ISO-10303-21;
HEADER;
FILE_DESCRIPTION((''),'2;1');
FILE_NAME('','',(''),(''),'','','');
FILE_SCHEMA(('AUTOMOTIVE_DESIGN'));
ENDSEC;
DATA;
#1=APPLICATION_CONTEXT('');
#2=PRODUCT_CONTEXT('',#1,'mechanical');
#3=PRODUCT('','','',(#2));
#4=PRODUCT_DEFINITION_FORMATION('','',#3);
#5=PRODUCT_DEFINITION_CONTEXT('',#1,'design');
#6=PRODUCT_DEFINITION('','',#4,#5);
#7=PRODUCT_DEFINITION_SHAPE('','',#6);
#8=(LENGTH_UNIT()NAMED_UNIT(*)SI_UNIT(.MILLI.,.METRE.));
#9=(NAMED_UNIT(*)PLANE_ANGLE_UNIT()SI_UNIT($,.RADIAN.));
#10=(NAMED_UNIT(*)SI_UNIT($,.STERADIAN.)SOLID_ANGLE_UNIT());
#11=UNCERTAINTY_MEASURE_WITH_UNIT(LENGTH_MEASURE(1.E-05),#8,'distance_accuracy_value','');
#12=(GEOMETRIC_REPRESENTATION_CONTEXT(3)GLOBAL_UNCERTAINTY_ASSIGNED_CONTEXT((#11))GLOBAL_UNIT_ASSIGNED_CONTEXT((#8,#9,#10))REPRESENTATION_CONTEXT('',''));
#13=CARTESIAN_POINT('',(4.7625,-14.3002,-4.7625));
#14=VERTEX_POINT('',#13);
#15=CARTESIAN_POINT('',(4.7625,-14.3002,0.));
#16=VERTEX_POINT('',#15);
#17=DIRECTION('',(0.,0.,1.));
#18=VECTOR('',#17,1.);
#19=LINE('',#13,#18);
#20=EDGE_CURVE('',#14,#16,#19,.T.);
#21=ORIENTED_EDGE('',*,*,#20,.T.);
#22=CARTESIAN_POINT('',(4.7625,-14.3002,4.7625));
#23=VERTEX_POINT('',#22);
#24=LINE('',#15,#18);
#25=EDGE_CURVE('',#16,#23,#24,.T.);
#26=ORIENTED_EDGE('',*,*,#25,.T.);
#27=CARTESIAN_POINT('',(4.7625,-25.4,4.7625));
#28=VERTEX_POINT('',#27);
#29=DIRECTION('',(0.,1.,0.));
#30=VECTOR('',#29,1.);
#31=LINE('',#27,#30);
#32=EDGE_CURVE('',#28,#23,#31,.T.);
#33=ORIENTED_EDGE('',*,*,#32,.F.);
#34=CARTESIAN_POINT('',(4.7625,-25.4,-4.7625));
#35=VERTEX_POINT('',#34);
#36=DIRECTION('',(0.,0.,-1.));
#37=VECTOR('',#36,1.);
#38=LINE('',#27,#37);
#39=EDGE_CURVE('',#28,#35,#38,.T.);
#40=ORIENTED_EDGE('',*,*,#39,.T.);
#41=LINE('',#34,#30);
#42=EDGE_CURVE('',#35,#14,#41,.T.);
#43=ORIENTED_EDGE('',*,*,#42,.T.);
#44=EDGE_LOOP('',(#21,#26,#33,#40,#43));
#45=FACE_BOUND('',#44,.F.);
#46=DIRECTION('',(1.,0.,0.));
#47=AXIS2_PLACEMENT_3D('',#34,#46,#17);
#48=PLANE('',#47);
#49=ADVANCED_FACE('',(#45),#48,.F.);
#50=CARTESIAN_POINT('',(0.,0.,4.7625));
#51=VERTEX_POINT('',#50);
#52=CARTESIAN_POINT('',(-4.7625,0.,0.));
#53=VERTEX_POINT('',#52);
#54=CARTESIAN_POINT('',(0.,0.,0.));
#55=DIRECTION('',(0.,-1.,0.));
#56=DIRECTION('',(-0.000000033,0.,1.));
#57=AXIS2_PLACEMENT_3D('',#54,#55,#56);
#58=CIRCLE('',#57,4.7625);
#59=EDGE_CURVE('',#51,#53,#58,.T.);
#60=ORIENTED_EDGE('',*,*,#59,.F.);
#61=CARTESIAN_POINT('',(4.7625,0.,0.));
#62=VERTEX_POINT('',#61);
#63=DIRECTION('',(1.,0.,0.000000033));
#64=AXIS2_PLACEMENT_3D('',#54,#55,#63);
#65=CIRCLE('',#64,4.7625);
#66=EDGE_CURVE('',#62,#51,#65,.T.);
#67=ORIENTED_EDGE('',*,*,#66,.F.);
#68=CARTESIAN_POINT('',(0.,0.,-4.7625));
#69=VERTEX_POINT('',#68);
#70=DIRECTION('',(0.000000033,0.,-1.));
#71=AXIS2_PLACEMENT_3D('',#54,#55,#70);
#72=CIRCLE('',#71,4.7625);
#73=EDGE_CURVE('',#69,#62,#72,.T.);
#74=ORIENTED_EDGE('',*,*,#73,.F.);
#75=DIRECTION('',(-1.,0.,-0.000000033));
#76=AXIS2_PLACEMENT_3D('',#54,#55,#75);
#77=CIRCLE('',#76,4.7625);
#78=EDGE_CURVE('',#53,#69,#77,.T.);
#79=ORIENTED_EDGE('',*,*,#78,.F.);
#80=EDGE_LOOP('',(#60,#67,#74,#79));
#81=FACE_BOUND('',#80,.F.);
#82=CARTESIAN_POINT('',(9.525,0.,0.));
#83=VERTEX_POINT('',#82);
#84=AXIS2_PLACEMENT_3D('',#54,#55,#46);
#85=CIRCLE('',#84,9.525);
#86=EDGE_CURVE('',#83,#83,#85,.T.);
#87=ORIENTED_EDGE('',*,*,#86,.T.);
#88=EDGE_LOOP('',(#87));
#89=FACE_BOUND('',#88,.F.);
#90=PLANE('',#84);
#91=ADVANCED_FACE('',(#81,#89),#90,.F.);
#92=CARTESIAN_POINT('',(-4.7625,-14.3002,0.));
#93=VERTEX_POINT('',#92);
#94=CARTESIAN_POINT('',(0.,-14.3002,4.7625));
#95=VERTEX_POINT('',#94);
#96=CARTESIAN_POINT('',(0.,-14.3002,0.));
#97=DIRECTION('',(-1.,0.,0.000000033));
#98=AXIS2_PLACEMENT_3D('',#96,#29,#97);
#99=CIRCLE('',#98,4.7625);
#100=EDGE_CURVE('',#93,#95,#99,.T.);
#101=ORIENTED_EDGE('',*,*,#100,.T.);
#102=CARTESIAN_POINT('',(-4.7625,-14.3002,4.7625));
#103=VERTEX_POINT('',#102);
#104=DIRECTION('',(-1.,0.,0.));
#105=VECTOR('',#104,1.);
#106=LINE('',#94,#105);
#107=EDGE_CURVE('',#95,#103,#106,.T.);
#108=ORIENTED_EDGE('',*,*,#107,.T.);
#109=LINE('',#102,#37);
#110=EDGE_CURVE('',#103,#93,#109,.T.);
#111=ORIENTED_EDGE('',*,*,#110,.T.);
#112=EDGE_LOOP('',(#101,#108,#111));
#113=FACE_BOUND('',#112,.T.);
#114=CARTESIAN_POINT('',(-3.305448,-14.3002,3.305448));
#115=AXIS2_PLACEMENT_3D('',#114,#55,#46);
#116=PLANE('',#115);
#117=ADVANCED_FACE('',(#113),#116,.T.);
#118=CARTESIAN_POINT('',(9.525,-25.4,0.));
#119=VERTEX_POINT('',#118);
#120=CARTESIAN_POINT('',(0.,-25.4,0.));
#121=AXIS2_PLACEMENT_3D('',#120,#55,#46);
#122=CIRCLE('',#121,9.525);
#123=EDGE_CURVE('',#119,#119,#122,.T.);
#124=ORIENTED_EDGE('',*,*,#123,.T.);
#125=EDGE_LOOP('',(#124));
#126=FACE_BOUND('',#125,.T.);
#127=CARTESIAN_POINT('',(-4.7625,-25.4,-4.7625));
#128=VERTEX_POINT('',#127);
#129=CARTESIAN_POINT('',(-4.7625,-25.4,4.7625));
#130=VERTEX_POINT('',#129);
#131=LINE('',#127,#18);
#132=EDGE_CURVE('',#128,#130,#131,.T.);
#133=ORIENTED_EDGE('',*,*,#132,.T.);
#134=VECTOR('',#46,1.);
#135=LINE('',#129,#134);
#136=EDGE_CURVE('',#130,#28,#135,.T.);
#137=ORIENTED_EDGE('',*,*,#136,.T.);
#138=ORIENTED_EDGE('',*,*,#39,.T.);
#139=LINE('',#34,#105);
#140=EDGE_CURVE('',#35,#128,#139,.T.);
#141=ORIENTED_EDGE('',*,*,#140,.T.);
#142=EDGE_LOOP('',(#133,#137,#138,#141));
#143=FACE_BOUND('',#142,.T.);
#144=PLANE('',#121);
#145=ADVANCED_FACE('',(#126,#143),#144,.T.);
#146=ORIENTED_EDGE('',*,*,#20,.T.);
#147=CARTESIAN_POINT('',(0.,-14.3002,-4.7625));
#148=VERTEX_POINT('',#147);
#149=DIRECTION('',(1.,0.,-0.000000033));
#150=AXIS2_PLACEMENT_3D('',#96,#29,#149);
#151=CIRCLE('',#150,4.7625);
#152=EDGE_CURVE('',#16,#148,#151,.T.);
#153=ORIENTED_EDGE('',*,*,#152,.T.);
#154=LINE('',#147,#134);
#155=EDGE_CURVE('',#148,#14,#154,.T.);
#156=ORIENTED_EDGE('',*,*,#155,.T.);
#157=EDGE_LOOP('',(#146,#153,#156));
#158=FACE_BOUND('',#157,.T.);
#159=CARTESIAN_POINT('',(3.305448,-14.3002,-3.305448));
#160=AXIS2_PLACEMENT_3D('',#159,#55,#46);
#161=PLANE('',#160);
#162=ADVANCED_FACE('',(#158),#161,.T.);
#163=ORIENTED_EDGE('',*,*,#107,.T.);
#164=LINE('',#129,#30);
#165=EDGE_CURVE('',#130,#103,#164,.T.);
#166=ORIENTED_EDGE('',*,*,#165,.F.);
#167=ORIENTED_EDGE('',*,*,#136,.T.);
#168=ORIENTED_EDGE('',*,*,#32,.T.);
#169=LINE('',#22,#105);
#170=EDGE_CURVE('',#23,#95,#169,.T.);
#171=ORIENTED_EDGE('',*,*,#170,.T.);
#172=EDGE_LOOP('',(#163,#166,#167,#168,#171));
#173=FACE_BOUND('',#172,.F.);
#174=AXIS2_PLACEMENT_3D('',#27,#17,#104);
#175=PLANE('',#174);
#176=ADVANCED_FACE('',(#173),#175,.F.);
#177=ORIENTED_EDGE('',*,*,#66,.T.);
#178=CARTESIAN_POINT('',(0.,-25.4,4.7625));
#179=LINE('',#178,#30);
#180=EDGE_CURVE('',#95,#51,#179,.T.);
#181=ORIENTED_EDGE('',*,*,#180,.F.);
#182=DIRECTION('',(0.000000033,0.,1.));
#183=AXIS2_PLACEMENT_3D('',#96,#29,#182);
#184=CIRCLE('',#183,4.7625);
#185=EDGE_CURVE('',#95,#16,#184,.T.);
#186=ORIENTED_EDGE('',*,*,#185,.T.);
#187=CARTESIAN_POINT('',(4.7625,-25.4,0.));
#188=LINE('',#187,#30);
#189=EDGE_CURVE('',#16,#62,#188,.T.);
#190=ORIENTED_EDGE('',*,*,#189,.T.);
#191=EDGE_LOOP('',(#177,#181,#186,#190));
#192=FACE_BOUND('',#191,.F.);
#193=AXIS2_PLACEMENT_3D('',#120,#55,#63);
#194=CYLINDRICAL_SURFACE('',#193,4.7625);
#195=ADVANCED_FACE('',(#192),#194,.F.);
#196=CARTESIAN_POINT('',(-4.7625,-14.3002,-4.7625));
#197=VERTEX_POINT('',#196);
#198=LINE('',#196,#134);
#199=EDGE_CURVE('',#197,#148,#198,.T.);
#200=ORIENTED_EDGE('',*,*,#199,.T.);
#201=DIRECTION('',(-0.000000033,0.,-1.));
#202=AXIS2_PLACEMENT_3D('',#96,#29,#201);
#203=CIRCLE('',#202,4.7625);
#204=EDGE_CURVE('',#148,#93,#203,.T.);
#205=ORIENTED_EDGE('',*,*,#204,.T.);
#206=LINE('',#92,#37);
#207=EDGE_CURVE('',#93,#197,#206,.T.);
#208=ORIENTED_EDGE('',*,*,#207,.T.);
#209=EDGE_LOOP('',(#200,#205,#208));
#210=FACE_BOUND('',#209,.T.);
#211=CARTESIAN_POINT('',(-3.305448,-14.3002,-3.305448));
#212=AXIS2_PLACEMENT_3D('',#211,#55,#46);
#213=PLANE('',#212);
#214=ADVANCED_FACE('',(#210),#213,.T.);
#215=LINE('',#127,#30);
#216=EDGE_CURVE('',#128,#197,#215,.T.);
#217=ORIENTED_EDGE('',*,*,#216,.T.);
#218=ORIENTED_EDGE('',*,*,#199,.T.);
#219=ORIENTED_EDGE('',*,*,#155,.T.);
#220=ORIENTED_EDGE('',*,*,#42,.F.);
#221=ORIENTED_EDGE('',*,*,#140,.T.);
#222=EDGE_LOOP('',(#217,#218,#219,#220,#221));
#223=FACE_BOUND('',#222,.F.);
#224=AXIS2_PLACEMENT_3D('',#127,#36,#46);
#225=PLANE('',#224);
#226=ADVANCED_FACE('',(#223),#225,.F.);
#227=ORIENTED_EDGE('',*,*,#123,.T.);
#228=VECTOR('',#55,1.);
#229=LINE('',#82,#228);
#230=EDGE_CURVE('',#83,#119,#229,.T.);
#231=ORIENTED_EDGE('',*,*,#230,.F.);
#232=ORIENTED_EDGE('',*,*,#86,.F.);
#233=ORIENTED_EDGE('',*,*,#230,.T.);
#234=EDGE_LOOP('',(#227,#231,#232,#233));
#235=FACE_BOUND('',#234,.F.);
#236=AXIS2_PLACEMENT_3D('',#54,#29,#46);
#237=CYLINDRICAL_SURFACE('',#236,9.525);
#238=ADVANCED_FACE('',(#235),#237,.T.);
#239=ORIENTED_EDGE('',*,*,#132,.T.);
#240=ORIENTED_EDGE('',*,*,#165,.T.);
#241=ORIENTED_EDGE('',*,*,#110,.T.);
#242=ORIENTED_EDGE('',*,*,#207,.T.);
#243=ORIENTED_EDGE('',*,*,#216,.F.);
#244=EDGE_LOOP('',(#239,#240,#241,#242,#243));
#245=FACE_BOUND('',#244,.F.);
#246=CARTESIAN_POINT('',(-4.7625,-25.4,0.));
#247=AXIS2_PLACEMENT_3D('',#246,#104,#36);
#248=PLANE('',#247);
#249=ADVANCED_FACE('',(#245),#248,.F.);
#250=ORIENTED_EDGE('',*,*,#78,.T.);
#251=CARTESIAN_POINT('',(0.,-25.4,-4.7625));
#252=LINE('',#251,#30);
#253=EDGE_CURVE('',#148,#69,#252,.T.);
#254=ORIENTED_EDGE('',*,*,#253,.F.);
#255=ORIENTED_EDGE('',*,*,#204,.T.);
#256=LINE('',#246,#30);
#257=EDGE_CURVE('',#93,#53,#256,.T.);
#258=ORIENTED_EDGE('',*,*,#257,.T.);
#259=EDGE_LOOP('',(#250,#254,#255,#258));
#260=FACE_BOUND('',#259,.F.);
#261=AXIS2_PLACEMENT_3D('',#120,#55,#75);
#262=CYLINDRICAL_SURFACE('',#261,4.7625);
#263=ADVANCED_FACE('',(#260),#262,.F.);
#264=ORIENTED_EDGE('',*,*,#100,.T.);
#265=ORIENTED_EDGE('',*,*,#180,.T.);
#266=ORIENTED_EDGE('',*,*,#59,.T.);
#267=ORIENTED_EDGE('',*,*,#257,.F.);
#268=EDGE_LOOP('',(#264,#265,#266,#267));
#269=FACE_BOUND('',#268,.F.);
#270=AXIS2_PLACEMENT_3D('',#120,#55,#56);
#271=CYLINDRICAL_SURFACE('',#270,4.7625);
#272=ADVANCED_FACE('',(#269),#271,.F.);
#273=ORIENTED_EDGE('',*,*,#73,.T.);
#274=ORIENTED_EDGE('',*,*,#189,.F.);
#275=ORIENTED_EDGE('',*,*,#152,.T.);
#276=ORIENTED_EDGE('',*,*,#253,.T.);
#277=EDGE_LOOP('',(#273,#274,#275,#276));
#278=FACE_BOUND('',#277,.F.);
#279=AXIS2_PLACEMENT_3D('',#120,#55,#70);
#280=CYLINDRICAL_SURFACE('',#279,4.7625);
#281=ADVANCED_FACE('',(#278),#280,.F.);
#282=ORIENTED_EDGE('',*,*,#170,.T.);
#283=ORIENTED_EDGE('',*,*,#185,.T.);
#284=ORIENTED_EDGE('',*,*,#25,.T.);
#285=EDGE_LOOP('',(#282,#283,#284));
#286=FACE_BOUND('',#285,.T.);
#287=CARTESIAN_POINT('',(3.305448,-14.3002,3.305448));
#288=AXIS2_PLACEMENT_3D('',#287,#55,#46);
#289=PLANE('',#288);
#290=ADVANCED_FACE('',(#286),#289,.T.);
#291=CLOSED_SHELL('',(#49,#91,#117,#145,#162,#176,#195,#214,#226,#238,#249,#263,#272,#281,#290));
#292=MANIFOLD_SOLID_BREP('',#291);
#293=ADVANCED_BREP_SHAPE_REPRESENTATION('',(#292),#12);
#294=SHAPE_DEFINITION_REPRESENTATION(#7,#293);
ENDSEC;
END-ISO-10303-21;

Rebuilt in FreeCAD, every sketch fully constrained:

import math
import FreeCAD as App
import Part
import Sketcher
from FreeCAD import Vector
Q = App.Units.Quantity

doc = App.newDocument("Part")
params = doc.addObject("Spreadsheet::Sheet", "Params")
for row, (alias, value) in enumerate([
    ("sketch1_diameter", "0.75 in"),
    ("pad1_length", "1 in"),
    ("sketch2_radius", "0.1875 in"),
    ("sketch3_radius", "0.1875 in"),
    ("pocket2_length", "0.437 in"),
], start=1):
    params.set(f"A{row}", alias)
    params.set(f"B{row}", "=" + value)
    params.setAlias(f"B{row}", alias)

body = doc.addObject("PartDesign::Body", "Body")

# Sketch on XZ plane
sketch1 = doc.addObject("Sketcher::SketchObject", "Sketch")
body.addObject(sketch1)
sketch1.AttachmentSupport = (doc.XZ_Plane, [""])
sketch1.MapMode = "FlatFace"
sketch1.addGeometry(Part.Circle(Vector(0, 0, 0), Vector(0, 0, 1), 10), False)
sketch1.addConstraint(Sketcher.Constraint("Coincident", 0, 3, -1, 1))
sketch1.addConstraint(Sketcher.Constraint("Diameter", 0, Q("0.75 in")))
sketch1.setExpression("Constraints[1]", "Params.sketch1_diameter")
pad1 = doc.addObject("PartDesign::Pad", "Pad")
body.addObject(pad1)
pad1.Profile = sketch1
pad1.setExpression("Length", "Params.pad1_length")

# Sketch on XZ plane
sketch2 = doc.addObject("Sketcher::SketchObject", "Sketch001")
body.addObject(sketch2)
sketch2.AttachmentSupport = (doc.XZ_Plane, [""])
sketch2.MapMode = "FlatFace"
sketch2.AttachmentOffset = App.Placement(Vector(0, 0, 1 * 25.4), App.Rotation())
sketch2.addGeometry(Part.ArcOfCircle(Part.Circle(Vector(0, 0, 0), Vector(0, 0, 1), 4.8), math.radians(-180), math.radians(-90)), False)
sketch2.addGeometry(Part.ArcOfCircle(Part.Circle(Vector(0, 0, 0), Vector(0, 0, 1), 4.8), math.radians(-90), math.radians(0)), False)
sketch2.addGeometry(Part.ArcOfCircle(Part.Circle(Vector(0, 0, 0), Vector(0, 0, 1), 4.8), math.radians(0), math.radians(90)), False)
sketch2.addGeometry(Part.ArcOfCircle(Part.Circle(Vector(0, 0, 0), Vector(0, 0, 1), 4.8), math.radians(90), math.radians(180)), False)
sketch2.addConstraint(Sketcher.Constraint("Tangent", 0, 2, 1, 1))
sketch2.addConstraint(Sketcher.Constraint("Tangent", 1, 2, 2, 1))
sketch2.addConstraint(Sketcher.Constraint("Tangent", 2, 2, 3, 1))
sketch2.addConstraint(Sketcher.Constraint("Tangent", 3, 2, 0, 1))
sketch2.addConstraint(Sketcher.Constraint("Coincident", 0, 3, -1, 1))
sketch2.addConstraint(Sketcher.Constraint("Equal", 0, 1))
sketch2.addConstraint(Sketcher.Constraint("PointOnObject", 0, 2, -2))
sketch2.addConstraint(Sketcher.Constraint("PointOnObject", 1, 2, -1))
sketch2.addConstraint(Sketcher.Constraint("PointOnObject", 2, 2, -2))
sketch2.addConstraint(Sketcher.Constraint("PointOnObject", 3, 2, -1))
sketch2.addConstraint(Sketcher.Constraint("Radius", 0, Q("0.1875 in")))
sketch2.setExpression("Constraints[10]", "Params.sketch2_radius")
pocket1 = doc.addObject("PartDesign::Pocket", "Pocket")
body.addObject(pocket1)
pocket1.Profile = sketch2
pocket1.Type = "ThroughAll"

# Sketch on XZ plane
sketch3 = doc.addObject("Sketcher::SketchObject", "Sketch002")
body.addObject(sketch3)
sketch3.AttachmentSupport = (doc.XZ_Plane, [""])
sketch3.MapMode = "FlatFace"
sketch3.AttachmentOffset = App.Placement(Vector(0, 0, 1 * 25.4), App.Rotation())
sketch3.addGeometry(Part.LineSegment(Vector(0, -4.8, 0), Vector(4.8, -4.8, 0)), False)
sketch3.addGeometry(Part.LineSegment(Vector(4.8, -4.8, 0), Vector(4.8, 0, 0)), False)
sketch3.addGeometry(Part.ArcOfCircle(Part.Circle(Vector(0, 0, 0), Vector(0, 0, 1), 4.8), math.radians(-90), math.radians(0)), False)
sketch3.addGeometry(Part.LineSegment(Vector(-4.8, -4.8, 0), Vector(0, -4.8, 0)), False)
sketch3.addGeometry(Part.ArcOfCircle(Part.Circle(Vector(0, 0, 0), Vector(0, 0, 1), 4.8), math.radians(-180), math.radians(-90)), False)
sketch3.addGeometry(Part.LineSegment(Vector(-4.8, 0, 0), Vector(-4.8, -4.8, 0)), False)
sketch3.addGeometry(Part.ArcOfCircle(Part.Circle(Vector(0, 0, 0), Vector(0, 0, 1), 4.8), math.radians(0), math.radians(90)), False)
sketch3.addGeometry(Part.LineSegment(Vector(4.8, 0, 0), Vector(4.8, 4.8, 0)), False)
sketch3.addGeometry(Part.LineSegment(Vector(4.8, 4.8, 0), Vector(0, 4.8, 0)), False)
sketch3.addGeometry(Part.LineSegment(Vector(-4.8, 4.8, 0), Vector(-4.8, 0, 0)), False)
sketch3.addGeometry(Part.ArcOfCircle(Part.Circle(Vector(0, 0, 0), Vector(0, 0, 1), 4.8), math.radians(90), math.radians(180)), False)
sketch3.addGeometry(Part.LineSegment(Vector(0, 4.8, 0), Vector(-4.8, 4.8, 0)), False)
sketch3.addConstraint(Sketcher.Constraint("Coincident", 0, 2, 1, 1))
sketch3.addConstraint(Sketcher.Constraint("Tangent", 1, 2, 2, 2))
sketch3.addConstraint(Sketcher.Constraint("Tangent", 2, 1, 0, 1))
sketch3.addConstraint(Sketcher.Constraint("Tangent", 3, 2, 4, 2))
sketch3.addConstraint(Sketcher.Constraint("Tangent", 4, 1, 5, 1))
sketch3.addConstraint(Sketcher.Constraint("Coincident", 5, 2, 3, 1))
sketch3.addConstraint(Sketcher.Constraint("Tangent", 6, 1, 7, 1))
sketch3.addConstraint(Sketcher.Constraint("Coincident", 7, 2, 8, 1))
sketch3.addConstraint(Sketcher.Constraint("Tangent", 8, 2, 6, 2))
sketch3.addConstraint(Sketcher.Constraint("Tangent", 9, 2, 10, 2))
sketch3.addConstraint(Sketcher.Constraint("Tangent", 10, 1, 11, 1))
sketch3.addConstraint(Sketcher.Constraint("Coincident", 11, 2, 9, 1))
sketch3.addConstraint(Sketcher.Constraint("Horizontal", 0))
sketch3.addConstraint(Sketcher.Constraint("Vertical", 1))
sketch3.addConstraint(Sketcher.Constraint("Horizontal", 3))
sketch3.addConstraint(Sketcher.Constraint("Vertical", 5))
sketch3.addConstraint(Sketcher.Constraint("Vertical", 7))
sketch3.addConstraint(Sketcher.Constraint("Horizontal", 8))
sketch3.addConstraint(Sketcher.Constraint("Vertical", 9))
sketch3.addConstraint(Sketcher.Constraint("Horizontal", 11))
sketch3.addConstraint(Sketcher.Constraint("Coincident", 2, 3, -1, 1))
sketch3.addConstraint(Sketcher.Constraint("Coincident", 4, 3, -1, 1))
sketch3.addConstraint(Sketcher.Constraint("Coincident", 6, 3, -1, 1))
sketch3.addConstraint(Sketcher.Constraint("Coincident", 10, 3, -1, 1))
sketch3.addConstraint(Sketcher.Constraint("Equal", 2, 4))
sketch3.addConstraint(Sketcher.Constraint("Equal", 4, 6))
sketch3.addConstraint(Sketcher.Constraint("Equal", 6, 10))
sketch3.addConstraint(Sketcher.Constraint("Radius", 2, Q("0.1875 in")))
sketch3.setExpression("Constraints[27]", "Params.sketch3_radius")
pocket2 = doc.addObject("PartDesign::Pocket", "Pocket001")
body.addObject(pocket2)
pocket2.Profile = sketch3
pocket2.setExpression("Length", "Params.pocket2_length")

doc.recompute()
